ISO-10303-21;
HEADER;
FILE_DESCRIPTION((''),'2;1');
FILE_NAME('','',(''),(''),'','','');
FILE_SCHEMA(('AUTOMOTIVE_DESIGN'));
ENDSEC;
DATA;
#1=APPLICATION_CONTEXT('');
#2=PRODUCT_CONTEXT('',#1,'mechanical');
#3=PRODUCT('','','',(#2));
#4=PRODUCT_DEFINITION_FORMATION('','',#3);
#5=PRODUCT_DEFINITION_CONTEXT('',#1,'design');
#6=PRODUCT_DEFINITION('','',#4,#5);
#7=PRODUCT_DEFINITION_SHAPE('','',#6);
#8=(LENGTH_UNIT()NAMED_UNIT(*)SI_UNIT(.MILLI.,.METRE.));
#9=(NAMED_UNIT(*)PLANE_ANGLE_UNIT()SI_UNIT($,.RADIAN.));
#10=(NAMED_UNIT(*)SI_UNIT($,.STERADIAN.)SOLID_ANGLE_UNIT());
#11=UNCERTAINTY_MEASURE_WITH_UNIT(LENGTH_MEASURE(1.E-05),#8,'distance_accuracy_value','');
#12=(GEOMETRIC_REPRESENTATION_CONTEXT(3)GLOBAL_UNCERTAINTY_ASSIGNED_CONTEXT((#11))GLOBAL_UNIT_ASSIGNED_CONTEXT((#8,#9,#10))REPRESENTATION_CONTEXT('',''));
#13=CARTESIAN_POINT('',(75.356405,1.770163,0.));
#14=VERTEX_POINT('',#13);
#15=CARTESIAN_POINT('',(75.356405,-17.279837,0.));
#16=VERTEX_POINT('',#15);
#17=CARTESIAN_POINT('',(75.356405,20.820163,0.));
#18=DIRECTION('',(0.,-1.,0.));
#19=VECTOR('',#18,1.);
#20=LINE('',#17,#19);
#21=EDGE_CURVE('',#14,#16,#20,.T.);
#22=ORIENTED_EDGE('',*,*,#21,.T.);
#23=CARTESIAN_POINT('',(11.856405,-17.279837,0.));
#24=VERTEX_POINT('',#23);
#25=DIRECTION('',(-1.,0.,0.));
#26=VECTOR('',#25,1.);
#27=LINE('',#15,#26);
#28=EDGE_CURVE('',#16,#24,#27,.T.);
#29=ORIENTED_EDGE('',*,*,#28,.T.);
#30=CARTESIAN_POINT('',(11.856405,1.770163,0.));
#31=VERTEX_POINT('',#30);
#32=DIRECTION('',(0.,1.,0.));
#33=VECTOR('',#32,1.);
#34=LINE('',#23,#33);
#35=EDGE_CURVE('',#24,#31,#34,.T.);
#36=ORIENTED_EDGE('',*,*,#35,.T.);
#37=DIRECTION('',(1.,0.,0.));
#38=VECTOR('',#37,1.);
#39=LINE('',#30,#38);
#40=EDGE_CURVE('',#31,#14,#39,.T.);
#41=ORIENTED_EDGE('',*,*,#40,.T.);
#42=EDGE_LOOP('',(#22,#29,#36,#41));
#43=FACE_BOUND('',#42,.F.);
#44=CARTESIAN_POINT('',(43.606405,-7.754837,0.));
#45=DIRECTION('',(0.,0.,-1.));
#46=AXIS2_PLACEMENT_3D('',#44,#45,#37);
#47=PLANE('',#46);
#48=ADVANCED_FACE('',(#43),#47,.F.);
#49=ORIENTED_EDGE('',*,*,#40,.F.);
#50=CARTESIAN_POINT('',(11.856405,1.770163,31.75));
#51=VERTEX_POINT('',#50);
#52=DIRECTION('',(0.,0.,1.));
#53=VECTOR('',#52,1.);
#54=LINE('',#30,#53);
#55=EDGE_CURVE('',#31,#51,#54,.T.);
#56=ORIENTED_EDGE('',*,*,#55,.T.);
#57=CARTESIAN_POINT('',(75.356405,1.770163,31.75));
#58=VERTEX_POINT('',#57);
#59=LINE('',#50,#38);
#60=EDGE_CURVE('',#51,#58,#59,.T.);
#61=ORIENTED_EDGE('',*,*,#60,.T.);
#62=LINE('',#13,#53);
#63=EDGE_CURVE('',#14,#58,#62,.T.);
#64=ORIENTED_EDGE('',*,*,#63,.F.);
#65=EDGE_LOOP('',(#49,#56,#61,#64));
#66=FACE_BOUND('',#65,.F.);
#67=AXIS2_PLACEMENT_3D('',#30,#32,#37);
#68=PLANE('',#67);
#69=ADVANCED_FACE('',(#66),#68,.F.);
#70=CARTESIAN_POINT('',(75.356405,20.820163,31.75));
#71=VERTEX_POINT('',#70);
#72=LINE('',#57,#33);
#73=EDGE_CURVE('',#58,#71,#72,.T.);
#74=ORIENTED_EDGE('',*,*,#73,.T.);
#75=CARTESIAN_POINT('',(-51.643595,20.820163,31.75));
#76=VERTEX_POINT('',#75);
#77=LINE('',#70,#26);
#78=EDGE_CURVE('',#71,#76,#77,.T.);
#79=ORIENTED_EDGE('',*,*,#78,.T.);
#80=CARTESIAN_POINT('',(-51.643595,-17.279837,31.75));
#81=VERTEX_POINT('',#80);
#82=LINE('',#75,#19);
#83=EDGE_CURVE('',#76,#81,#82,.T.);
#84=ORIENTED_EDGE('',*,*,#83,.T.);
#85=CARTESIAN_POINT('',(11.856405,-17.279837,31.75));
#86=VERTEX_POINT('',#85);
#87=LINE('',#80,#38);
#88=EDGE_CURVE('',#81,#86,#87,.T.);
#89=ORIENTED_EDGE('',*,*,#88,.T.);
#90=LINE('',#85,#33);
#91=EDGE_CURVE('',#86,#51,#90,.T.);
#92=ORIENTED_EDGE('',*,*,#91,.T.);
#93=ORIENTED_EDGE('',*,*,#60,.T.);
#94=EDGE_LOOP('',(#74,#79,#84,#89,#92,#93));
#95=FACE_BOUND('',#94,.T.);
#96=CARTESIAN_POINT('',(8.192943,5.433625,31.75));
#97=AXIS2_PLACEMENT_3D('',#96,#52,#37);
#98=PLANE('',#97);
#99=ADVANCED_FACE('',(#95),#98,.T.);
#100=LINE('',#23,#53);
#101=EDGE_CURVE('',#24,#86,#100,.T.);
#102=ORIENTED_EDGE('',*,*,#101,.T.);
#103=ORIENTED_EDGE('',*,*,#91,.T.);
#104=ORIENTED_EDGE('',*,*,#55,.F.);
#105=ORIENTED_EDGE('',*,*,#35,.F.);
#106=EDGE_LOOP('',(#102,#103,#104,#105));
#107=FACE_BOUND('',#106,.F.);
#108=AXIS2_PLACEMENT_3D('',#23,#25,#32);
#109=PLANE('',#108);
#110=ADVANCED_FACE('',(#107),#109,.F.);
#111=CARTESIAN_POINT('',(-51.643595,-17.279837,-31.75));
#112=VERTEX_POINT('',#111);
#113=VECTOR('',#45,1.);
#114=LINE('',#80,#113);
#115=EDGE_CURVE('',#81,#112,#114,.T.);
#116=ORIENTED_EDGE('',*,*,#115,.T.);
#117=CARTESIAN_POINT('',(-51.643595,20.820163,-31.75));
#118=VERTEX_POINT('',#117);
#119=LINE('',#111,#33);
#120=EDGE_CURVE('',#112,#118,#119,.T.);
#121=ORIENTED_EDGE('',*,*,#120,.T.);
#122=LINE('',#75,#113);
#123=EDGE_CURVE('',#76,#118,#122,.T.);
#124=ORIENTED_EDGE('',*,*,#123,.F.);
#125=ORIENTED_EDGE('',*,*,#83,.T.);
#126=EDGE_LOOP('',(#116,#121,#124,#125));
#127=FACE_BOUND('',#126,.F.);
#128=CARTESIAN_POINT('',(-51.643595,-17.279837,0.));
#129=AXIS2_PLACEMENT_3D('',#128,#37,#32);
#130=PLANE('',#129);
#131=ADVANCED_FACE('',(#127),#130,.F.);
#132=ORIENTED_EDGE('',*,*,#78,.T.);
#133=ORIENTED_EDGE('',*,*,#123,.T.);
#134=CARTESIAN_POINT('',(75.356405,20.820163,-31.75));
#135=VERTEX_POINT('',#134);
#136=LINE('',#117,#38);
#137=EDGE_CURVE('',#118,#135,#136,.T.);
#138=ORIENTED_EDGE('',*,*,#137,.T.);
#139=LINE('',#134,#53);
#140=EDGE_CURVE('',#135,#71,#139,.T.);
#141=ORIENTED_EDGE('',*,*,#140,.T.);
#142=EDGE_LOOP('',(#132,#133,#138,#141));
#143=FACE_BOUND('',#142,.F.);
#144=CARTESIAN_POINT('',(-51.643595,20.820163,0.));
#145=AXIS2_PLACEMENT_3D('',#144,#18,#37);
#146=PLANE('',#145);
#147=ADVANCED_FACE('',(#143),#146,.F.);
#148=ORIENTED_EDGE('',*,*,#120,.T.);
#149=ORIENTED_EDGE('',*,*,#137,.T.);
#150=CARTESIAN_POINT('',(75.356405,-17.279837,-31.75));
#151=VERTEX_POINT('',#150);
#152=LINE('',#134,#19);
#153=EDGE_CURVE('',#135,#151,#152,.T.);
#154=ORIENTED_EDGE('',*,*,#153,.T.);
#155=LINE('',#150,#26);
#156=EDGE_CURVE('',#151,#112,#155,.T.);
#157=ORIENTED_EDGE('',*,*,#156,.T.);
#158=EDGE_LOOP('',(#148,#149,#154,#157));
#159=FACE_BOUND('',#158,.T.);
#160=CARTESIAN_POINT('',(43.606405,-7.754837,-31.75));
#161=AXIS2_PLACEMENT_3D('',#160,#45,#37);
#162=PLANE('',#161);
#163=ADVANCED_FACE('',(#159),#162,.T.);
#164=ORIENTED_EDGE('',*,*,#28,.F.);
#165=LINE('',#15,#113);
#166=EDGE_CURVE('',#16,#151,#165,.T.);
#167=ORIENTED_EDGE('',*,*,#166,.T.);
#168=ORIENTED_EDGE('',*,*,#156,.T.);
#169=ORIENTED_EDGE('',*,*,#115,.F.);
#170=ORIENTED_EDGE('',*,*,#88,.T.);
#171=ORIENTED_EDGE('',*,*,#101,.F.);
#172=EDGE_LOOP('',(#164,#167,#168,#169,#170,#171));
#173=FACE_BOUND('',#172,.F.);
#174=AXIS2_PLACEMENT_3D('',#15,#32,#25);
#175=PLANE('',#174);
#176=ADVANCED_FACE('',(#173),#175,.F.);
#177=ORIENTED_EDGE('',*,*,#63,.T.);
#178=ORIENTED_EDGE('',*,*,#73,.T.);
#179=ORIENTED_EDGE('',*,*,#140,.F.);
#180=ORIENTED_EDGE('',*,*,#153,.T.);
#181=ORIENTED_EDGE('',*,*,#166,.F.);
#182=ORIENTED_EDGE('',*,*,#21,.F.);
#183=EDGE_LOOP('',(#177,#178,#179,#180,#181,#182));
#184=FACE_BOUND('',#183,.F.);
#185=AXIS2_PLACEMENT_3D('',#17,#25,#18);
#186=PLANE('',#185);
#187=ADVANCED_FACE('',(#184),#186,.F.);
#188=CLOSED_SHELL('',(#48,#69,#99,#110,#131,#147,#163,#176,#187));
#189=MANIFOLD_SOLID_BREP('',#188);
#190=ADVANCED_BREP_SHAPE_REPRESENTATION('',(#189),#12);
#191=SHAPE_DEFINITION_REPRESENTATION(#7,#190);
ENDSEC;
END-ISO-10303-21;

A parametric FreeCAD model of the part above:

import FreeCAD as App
import Part
import Sketcher
from FreeCAD import Vector
Q = App.Units.Quantity


def add_polygon(sketch, points):
    """Adds a closed chain of lines whose ends are joined by coincident constraints."""
    first, n = sketch.GeometryCount, len(points)
    for a, b in zip(points, points[1:] + points[:1]):
        sketch.addGeometry(Part.LineSegment(App.Vector(*a, 0), App.Vector(*b, 0)), False)
    for i in range(n):
        sketch.addConstraint(Sketcher.Constraint("Coincident", first + i, 2, first + (i + 1) % n, 1))

doc = App.newDocument("Part")
body = doc.addObject("PartDesign::Body", "Body")

# Sketch on XY plane
sketch1 = body.newObject("Sketcher::SketchObject", "Sketch")
sketch1.AttachmentSupport = (doc.getObject("XY_Plane"), [""])
sketch1.MapMode = "FlatFace"
add_polygon(sketch1, [(-52, 21), (-52, -17), (12, -17), (12, 2), (75, 2), (75, 21)])  # lines 0-5
sketch1.addConstraint([
    Sketcher.Constraint("Vertical", 0),
    Sketcher.Constraint("Horizontal", 1),
    Sketcher.Constraint("Vertical", 2),
    Sketcher.Constraint("Horizontal", 3),
    Sketcher.Constraint("Vertical", 4),
    Sketcher.Constraint("Horizontal", 5),
    Sketcher.Constraint("Equal", 1, 3),
    Sketcher.Constraint("Equal", 2, 4),
    Sketcher.Constraint("DistanceX", 5, 2, 5, 1, Q("5 in")),
    Sketcher.Constraint("DistanceY", 0, 2, 0, 1, Q("1.5 in")),
    Sketcher.Constraint("DistanceX", 0, 2, -1, 1, 51.643595),
    Sketcher.Constraint("DistanceY", 0, 2, -1, 1, 17.279837),
])
pad1 = body.newObject("PartDesign::Pad", "Pad")
pad1.Profile = sketch1
pad1.Length = Q("1.25 in")

# Sketch on XY plane
sketch2 = body.newObject("Sketcher::SketchObject", "Sketch001")
sketch2.AttachmentSupport = (doc.getObject("XY_Plane"), [""])
sketch2.MapMode = "FlatFace"
add_polygon(sketch2, [(75, -17), (-52, -17), (-52, 21), (75, 21)])  # lines 0-3
sketch2.addConstraint([
    Sketcher.Constraint("Horizontal", 0),
    Sketcher.Constraint("Vertical", 1),
    Sketcher.Constraint("Horizontal", 2),
    Sketcher.Constraint("Vertical", 3),
    Sketcher.Constraint("DistanceX", 0, 2, 0, 1, Q("5 in")),
    Sketcher.Constraint("DistanceY", 1, 1, 1, 2, Q("1.5 in")),
    Sketcher.Constraint("DistanceX", 0, 2, -1, 1, 51.643595),
    Sketcher.Constraint("DistanceY", 0, 2, -1, 1, 17.279837),
])
pad2 = body.newObject("PartDesign::Pad", "Pad001")
pad2.Profile = sketch2
pad2.Length = Q("1.25 in")
pad2.Reversed = True

doc.recompute()
